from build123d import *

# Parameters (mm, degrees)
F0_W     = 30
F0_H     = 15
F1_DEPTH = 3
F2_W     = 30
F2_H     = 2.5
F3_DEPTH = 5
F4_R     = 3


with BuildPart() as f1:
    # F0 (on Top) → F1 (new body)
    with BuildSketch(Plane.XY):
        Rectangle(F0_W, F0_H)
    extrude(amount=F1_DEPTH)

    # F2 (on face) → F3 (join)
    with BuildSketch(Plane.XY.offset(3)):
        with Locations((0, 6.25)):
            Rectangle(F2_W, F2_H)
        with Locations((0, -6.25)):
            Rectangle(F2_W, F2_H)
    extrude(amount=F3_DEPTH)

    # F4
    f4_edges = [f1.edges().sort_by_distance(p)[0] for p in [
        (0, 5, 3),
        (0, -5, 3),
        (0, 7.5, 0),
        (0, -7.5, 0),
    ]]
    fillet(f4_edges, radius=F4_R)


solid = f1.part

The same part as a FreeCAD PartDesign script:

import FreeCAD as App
import Part
import Sketcher

V = App.Vector


def edges_at(feature, points):
    """Names of the edges that pass closest to the given points."""
    edges = feature.Shape.Edges
    near = lambda p: min(range(len(edges)), key=lambda i: edges[i].distToShape(Part.Vertex(*p))[0])
    return sorted({f"Edge{near(p) + 1}" for p in points})


def add_polygon(sketch, points):
    """Adds a closed chain of lines whose ends are joined by coincident constraints."""
    first, n = sketch.GeometryCount, len(points)
    for a, b in zip(points, points[1:] + points[:1]):
        sketch.addGeometry(Part.LineSegment(App.Vector(*a, 0), App.Vector(*b, 0)), False)
    for i in range(n):
        sketch.addConstraint(Sketcher.Constraint("Coincident", first + i, 2, first + (i + 1) % n, 1))

doc = App.newDocument("Part")
params = doc.addObject("Spreadsheet::Sheet", "Params")
for row, (alias, value) in enumerate([
    ("sketch1_width", "30 mm"),
    ("sketch1_height", "15 mm"),
    ("pad1_length", "3 mm"),
    ("sketch2_width", "30 mm"),
    ("sketch2_height", "2.5 mm"),
    ("pad2_length", "5 mm"),
    ("fillet_radius", "3 mm"),
], start=1):
    params.set(f"A{row}", alias)
    params.set(f"B{row}", "=" + value)
    params.setAlias(f"B{row}", alias)

body = doc.addObject("PartDesign::Body", "Body")

# Sketch on XY plane
sketch1 = body.newObject("Sketcher::SketchObject", "Sketch")
sketch1.AttachmentSupport = (doc.getObject("XY_Plane"), [""])
sketch1.MapMode = "FlatFace"
add_polygon(sketch1, [(-15, 8), (-15, -8), (15, -8), (15, 8)])  # lines 0-3
sketch1.addConstraint(Sketcher.Constraint("Vertical", 0))
sketch1.addConstraint(Sketcher.Constraint("Horizontal", 1))
sketch1.addConstraint(Sketcher.Constraint("Vertical", 2))
sketch1.addConstraint(Sketcher.Constraint("Horizontal", 3))
sketch1.addConstraint(Sketcher.Constraint("Symmetric", 0, 2, 2, 2, -1, 1))
sketch1.addConstraint(Sketcher.Constraint("DistanceX", 1, 1, 1, 2, 30.0))
sketch1.addConstraint(Sketcher.Constraint("DistanceY", 0, 2, 0, 1, 15.0))
sketch1.setExpression("Constraints[9]", "Params.sketch1_width")
sketch1.setExpression("Constraints[10]", "Params.sketch1_height")
pad1 = body.newObject("PartDesign::Pad", "Pad")
pad1.Profile = sketch1
pad1.setExpression("Length", "Params.pad1_length")

# Sketch on XY plane
sketch2 = body.newObject("Sketcher::SketchObject", "Sketch001")
sketch2.AttachmentSupport = (doc.getObject("XY_Plane"), [""])
sketch2.MapMode = "FlatFace"
sketch2.AttachmentOffset = App.Placement(V(0, 0, 3), App.Rotation())
add_polygon(sketch2, [(-15, 7.5), (-15, 5), (15, 5), (15, 7.5)])  # lines 0-3
add_polygon(sketch2, [(-15, -5), (-15, -7.5), (15, -7.5), (15, -5)])  # lines 4-7
sketch2.addConstraint(Sketcher.Constraint("Vertical", 0))
sketch2.addConstraint(Sketcher.Constraint("Horizontal", 1))
sketch2.addConstraint(Sketcher.Constraint("Vertical", 2))
sketch2.addConstraint(Sketcher.Constraint("Horizontal", 3))
sketch2.addConstraint(Sketcher.Constraint("Vertical", 4))
sketch2.addConstraint(Sketcher.Constraint("Horizontal", 5))
sketch2.addConstraint(Sketcher.Constraint("Vertical", 6))
sketch2.addConstraint(Sketcher.Constraint("Horizontal", 7))
sketch2.addConstraint(Sketcher.Constraint("Symmetric", 2, 2, 4, 2, -1, 1))
sketch2.addConstraint(Sketcher.Constraint("Symmetric", 0, 2, 6, 2, -1, 1))
sketch2.addConstraint(Sketcher.Constraint("Vertical", 3, 2, 4, 2))
sketch2.addConstraint(Sketcher.Constraint("DistanceX", 1, 1, 1, 2, 30.0))
sketch2.addConstraint(Sketcher.Constraint("DistanceY", 0, 2, 0, 1, 2.5))
sketch2.addConstraint(Sketcher.Constraint("DistanceY", -1, 1, 0, 2, 5.0))
sketch2.setExpression("Constraints[19]", "Params.sketch2_width")
sketch2.setExpression("Constraints[20]", "Params.sketch2_height")
pad2 = body.newObject("PartDesign::Pad", "Pad001")
pad2.Profile = sketch2
pad2.setExpression("Length", "Params.pad2_length")
doc.recompute()

fillet = body.newObject("PartDesign::Fillet", "Fillet")
fillet.Base = (pad2, edges_at(pad2, [
    (0, 5, 3),
    (0, -5, 3),
    (0, 7.5, 0),
    (0, -7.5, 0),
]))
fillet.setExpression("Radius", "Params.fillet_radius")

doc.recompute()
